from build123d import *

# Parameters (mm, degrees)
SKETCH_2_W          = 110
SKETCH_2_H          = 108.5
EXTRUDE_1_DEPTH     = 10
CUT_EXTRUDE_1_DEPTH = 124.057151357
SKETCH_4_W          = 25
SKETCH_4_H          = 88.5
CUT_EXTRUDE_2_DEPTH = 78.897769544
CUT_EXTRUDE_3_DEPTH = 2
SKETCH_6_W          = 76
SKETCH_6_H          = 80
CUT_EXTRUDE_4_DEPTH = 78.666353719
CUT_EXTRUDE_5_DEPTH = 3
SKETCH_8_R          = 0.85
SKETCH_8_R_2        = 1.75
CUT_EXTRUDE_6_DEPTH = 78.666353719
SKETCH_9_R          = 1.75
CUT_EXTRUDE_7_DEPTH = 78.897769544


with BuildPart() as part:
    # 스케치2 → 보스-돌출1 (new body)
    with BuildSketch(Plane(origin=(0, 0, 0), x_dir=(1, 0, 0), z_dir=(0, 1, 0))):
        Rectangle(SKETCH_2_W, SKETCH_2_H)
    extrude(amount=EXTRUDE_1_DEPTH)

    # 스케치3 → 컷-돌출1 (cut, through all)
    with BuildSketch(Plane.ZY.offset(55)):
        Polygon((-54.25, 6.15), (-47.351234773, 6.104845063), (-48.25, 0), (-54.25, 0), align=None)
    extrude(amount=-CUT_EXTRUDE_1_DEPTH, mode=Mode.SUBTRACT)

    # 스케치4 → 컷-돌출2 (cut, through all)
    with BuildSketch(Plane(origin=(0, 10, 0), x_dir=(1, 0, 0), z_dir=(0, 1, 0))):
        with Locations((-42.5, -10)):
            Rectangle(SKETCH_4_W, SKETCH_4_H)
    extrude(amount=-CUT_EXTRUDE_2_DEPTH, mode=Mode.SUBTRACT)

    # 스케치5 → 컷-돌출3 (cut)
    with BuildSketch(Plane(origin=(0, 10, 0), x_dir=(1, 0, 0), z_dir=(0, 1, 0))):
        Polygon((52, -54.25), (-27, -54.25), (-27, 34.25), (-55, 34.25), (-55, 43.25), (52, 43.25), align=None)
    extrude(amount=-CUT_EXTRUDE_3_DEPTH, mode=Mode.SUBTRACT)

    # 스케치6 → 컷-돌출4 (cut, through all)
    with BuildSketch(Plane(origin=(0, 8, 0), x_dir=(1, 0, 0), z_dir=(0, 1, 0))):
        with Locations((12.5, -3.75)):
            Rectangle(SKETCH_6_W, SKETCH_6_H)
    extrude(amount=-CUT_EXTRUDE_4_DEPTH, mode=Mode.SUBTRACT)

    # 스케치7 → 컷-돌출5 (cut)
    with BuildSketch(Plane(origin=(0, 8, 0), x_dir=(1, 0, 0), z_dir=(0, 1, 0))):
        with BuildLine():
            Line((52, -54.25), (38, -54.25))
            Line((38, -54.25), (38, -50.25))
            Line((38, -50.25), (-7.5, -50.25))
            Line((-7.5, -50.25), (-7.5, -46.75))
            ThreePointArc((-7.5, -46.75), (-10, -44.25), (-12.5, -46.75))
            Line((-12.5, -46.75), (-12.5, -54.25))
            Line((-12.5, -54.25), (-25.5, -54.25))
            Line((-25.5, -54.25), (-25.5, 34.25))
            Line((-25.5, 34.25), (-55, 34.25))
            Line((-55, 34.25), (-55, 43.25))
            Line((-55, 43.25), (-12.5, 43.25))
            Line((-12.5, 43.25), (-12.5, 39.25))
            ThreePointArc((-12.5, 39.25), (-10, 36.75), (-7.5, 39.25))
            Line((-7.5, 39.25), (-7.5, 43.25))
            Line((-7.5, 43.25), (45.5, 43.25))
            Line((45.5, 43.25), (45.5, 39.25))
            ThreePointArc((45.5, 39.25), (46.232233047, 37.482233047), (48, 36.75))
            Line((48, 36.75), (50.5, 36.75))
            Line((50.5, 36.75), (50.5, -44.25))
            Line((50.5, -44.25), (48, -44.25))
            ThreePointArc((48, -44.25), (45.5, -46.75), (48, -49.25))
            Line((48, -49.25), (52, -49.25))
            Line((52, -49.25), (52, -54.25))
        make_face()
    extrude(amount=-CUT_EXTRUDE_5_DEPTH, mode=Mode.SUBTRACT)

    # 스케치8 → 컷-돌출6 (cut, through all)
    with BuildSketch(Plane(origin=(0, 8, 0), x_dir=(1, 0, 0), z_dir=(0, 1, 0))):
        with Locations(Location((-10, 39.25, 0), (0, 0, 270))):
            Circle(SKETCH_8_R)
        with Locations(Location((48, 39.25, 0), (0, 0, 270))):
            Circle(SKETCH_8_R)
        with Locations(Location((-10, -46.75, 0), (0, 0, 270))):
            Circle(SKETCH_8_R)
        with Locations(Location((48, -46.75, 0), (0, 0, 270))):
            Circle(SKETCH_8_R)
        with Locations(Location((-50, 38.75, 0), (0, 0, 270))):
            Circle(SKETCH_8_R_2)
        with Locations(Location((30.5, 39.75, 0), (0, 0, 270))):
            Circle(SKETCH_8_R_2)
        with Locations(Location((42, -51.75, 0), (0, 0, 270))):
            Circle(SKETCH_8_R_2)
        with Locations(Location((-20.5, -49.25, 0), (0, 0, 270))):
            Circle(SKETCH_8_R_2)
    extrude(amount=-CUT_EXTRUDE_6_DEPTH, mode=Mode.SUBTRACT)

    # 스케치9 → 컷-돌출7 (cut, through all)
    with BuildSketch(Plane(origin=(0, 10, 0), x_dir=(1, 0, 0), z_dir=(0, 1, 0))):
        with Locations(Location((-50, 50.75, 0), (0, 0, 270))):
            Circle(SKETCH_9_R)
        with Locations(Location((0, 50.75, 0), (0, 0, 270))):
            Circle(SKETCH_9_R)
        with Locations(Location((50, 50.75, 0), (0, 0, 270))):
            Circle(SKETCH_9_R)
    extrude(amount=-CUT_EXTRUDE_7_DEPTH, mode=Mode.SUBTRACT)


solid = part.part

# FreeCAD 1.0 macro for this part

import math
import FreeCAD as App
import Part
import Sketcher

V = App.Vector
Q = App.Units.Quantity


def add_polygon(sketch, points):
    """Adds a closed chain of lines whose ends are joined by coincident constraints."""
    first, n = sketch.GeometryCount, len(points)
    for a, b in zip(points, points[1:] + points[:1]):
        sketch.addGeometry(Part.LineSegment(App.Vector(*a, 0), App.Vector(*b, 0)), False)
    for i in range(n):
        sketch.addConstraint(Sketcher.Constraint("Coincident", first + i, 2, first + (i + 1) % n, 1))

doc = App.newDocument("Part")
params = doc.addObject("Spreadsheet::Sheet", "Params")
for row, (alias, value) in enumerate([
    ("sketch1_width", "110 mm"),
    ("sketch1_height", "108.5 mm"),
    ("pad1_length", "10 mm"),
    ("sketch2_height", "6 mm"),
    ("sketch2_width", "6.15 mm"),
    ("sketch3_width", "25 mm"),
    ("sketch3_height", "88.5 mm"),
    ("sketch4_width", "79 mm"),
    ("sketch4_width2", "107 mm"),
    ("sketch4_height", "9 mm"),
    ("sketch4_height2", "97.5 mm"),
    ("pocket3_length", "2 mm"),
    ("sketch5_width", "76 mm"),
    ("sketch5_height", "80 mm"),
    ("sketch6_radius", "2.5 mm"),
    ("sketch6_width", "14 mm"),
    ("sketch6_width2", "4 mm"),
    ("sketch6_width3", "53 mm"),
    ("sketch6_width4", "13 mm"),
    ("pocket5_length", "3 mm"),
    ("sketch7_diameter", "1.7 mm"),
    ("sketch7_diameter2", "3.5 mm"),
    ("sketch8_diameter", "3.5 mm"),
], start=1):
    params.set(f"A{row}", alias)
    params.set(f"B{row}", "=" + value)
    params.setAlias(f"B{row}", alias)

body = doc.addObject("PartDesign::Body", "Body")

sketch1 = body.newObject("Sketcher::SketchObject", "Sketch")
sketch1.AttachmentSupport = (doc.getObject("XZ_Plane"), [""])
sketch1.MapMode = "FlatFace"
add_polygon(sketch1, [(-55, -54), (-55, 54), (55, 54), (55, -54)])
sketch1.addConstraint([
    Sketcher.Constraint("Vertical", 0),
    Sketcher.Constraint("Horizontal", 1),
    Sketcher.Constraint("Vertical", 2),
    Sketcher.Constraint("Horizontal", 3),
    Sketcher.Constraint("Symmetric", 0, 2, 2, 2, -1, 1),
    Sketcher.Constraint("DistanceX", 1, 1, 1, 2, Q("110 mm")),
    Sketcher.Constraint("DistanceY", 0, 1, 0, 2, Q("108.5 mm")),
])
sketch1.setExpression("Constraints[9]", "Params.sketch1_width")
sketch1.setExpression("Constraints[10]", "Params.sketch1_height")
pad1 = body.newObject("PartDesign::Pad", "Pad")
pad1.Profile = sketch1
pad1.setExpression("Length", "Params.pad1_length")
pad1.Reversed = True

sketch2 = body.newObject("Sketcher::SketchObject", "Sketch001")
sketch2.AttachmentSupport = (doc.getObject("YZ_Plane"), [""])
sketch2.MapMode = "FlatFace"
sketch2.AttachmentOffset = App.Placement(V(0, 0, -55), App.Rotation())
add_polygon(sketch2, [(6, -47), (6, -54), (0, -54), (0, -48)])
sketch2.addConstraint([
    Sketcher.Constraint("Horizontal", 1),
    Sketcher.Constraint("Vertical", 2),
    Sketcher.Constraint("PointOnObject", 1, 2, -2),
    Sketcher.Constraint("DistanceY", 2, 1, 2, 2, Q("6 mm")),
    Sketcher.Constraint("DistanceX", 1, 2, 1, 1, Q("6.15 mm")),
    Sketcher.Constraint("DistanceY", 0, 2, -1, 1, Q("54.25 mm")),
    Sketcher.Constraint("Distance", 3, Q("6.170649 mm")),
    Sketcher.Constraint("Distance", 0, Q("6.898913 mm")),
])
sketch2.setExpression("Constraints[7]", "Params.sketch2_height")
sketch2.setExpression("Constraints[8]", "Params.sketch2_width")
pocket1 = body.newObject("PartDesign::Pocket", "Pocket")
pocket1.Profile = sketch2
pocket1.Type = "ThroughAll"
pocket1.Reversed = True

sketch3 = body.newObject("Sketcher::SketchObject", "Sketch002")
sketch3.AttachmentSupport = (doc.getObject("XZ_Plane"), [""])
sketch3.MapMode = "FlatFace"
sketch3.AttachmentOffset = App.Placement(V(0, 0, -10), App.Rotation())
add_polygon(sketch3, [(-55, -34), (-55, 54), (-30, 54), (-30, -34)])
sketch3.addConstraint([
    Sketcher.Constraint("Vertical", 0),
    Sketcher.Constraint("Horizontal", 1),
    Sketcher.Constraint("Vertical", 2),
    Sketcher.Constraint("Horizontal", 3),
    Sketcher.Constraint("DistanceX", 1, 1, 1, 2, Q("25 mm")),
    Sketcher.Constraint("DistanceY", 0, 1, 0, 2, Q("88.5 mm")),
    Sketcher.Constraint("DistanceX", 0, 2, -1, 1, Q("55 mm")),
    Sketcher.Constraint("DistanceY", -1, 1, 0, 2, Q("54.25 mm")),
])
sketch3.setExpression("Constraints[8]", "Params.sketch3_width")
sketch3.setExpression("Constraints[9]", "Params.sketch3_height")
pocket2 = body.newObject("PartDesign::Pocket", "Pocket001")
pocket2.Profile = sketch3
pocket2.Type = "ThroughAll"
pocket2.Reversed = True

sketch4 = body.newObject("Sketcher::SketchObject", "Sketch003")
sketch4.AttachmentSupport = (doc.getObject("XZ_Plane"), [""])
sketch4.MapMode = "FlatFace"
sketch4.AttachmentOffset = App.Placement(V(0, 0, -10), App.Rotation())
add_polygon(sketch4, [(-27, 54), (52, 54), (52, -43), (-55, -43), (-55, -34), (-27, -34)])
sketch4.addConstraint([
    Sketcher.Constraint("Horizontal", 0),
    Sketcher.Constraint("Vertical", 1),
    Sketcher.Constraint("Horizontal", 2),
    Sketcher.Constraint("Vertical", 3),
    Sketcher.Constraint("Horizontal", 4),
    Sketcher.Constraint("Vertical", 5),
    Sketcher.Constraint("DistanceX", 0, 1, 0, 2, Q("79 mm")),
    Sketcher.Constraint("DistanceX", 2, 2, 2, 1, Q("107 mm")),
    Sketcher.Constraint("DistanceY", 3, 1, 3, 2, Q("9 mm")),
    Sketcher.Constraint("DistanceY", 1, 2, 1, 1, Q("97.5 mm")),
    Sketcher.Constraint("DistanceX", -1, 1, 0, 2, Q("52 mm")),
    Sketcher.Constraint("DistanceY", -1, 1, 0, 2, Q("54.25 mm")),
])
sketch4.setExpression("Constraints[12]", "Params.sketch4_width")
sketch4.setExpression("Constraints[13]", "Params.sketch4_width2")
sketch4.setExpression("Constraints[14]", "Params.sketch4_height")
sketch4.setExpression("Constraints[15]", "Params.sketch4_height2")
pocket3 = body.newObject("PartDesign::Pocket", "Pocket002")
pocket3.Profile = sketch4
pocket3.setExpression("Length", "Params.pocket3_length")
pocket3.Reversed = True

sketch5 = body.newObject("Sketcher::SketchObject", "Sketch004")
sketch5.AttachmentSupport = (doc.getObject("XZ_Plane"), [""])
sketch5.MapMode = "FlatFace"
sketch5.AttachmentOffset = App.Placement(V(0, 0, -8), App.Rotation())
add_polygon(sketch5, [(-26, -36), (-26, 44), (50, 44), (50, -36)])
sketch5.addConstraint([
    Sketcher.Constraint("Vertical", 0),
    Sketcher.Constraint("Horizontal", 1),
    Sketcher.Constraint("Vertical", 2),
    Sketcher.Constraint("Horizontal", 3),
    Sketcher.Constraint("DistanceX", 1, 1, 1, 2, Q("76 mm")),
    Sketcher.Constraint("DistanceY", 0, 1, 0, 2, Q("80 mm")),
    Sketcher.Constraint("DistanceX", 0, 2, -1, 1, Q("25.5 mm")),
    Sketcher.Constraint("DistanceY", -1, 1, 0, 2, Q("43.75 mm")),
])
sketch5.setExpression("Constraints[8]", "Params.sketch5_width")
sketch5.setExpression("Constraints[9]", "Params.sketch5_height")
pocket4 = body.newObject("PartDesign::Pocket", "Pocket003")
pocket4.Profile = sketch5
pocket4.Type = "ThroughAll"
pocket4.Reversed = True

sketch6 = body.newObject("Sketcher::SketchObject", "Sketch005")
sketch6.AttachmentSupport = (doc.getObject("XZ_Plane"), [""])
sketch6.MapMode = "FlatFace"
sketch6.AttachmentOffset = App.Placement(V(0, 0, -8), App.Rotation())
sketch6.addGeometry([
    Part.LineSegment(V(38, 54.2, 0), V(52, 54.2, 0)),
    Part.LineSegment(V(52, 54.2, 0), V(52, 49.2, 0)),
    Part.LineSegment(V(52, 49.2, 0), V(48, 49.2, 0)),
    Part.ArcOfCircle(Part.Circle(V(48, 46.8, 0), V(0, 0, 1), 2.5), math.radians(90), math.radians(270)),
    Part.LineSegment(V(48, 44.2, 0), V(50.5, 44.2, 0)),
    Part.LineSegment(V(50.5, 44.2, 0), V(50.5, -36.8, 0)),
    Part.LineSegment(V(50.5, -36.8, 0), V(48, -36.8, 0)),
    Part.ArcOfCircle(Part.Circle(V(48, -39.2, 0), V(0, 0, 1), 2.5), math.radians(90), math.radians(180)),
    Part.LineSegment(V(45.5, -39.2, 0), V(45.5, -43.2, 0)),
    Part.LineSegment(V(45.5, -43.2, 0), V(-7.5, -43.2, 0)),
    Part.LineSegment(V(-7.5, -43.2, 0), V(-7.5, -39.2, 0)),
    Part.ArcOfCircle(Part.Circle(V(-10, -39.2, 0), V(0, 0, 1), 2.5), math.radians(0), math.radians(180)),
    Part.LineSegment(V(-12.5, -39.2, 0), V(-12.5, -43.2, 0)),
    Part.LineSegment(V(-12.5, -43.2, 0), V(-55, -43.2, 0)),
    Part.LineSegment(V(-55, -43.2, 0), V(-55, -34.2, 0)),
    Part.LineSegment(V(-55, -34.2, 0), V(-25.5, -34.2, 0)),
    Part.LineSegment(V(-25.5, -34.2, 0), V(-25.5, 54.2, 0)),
    Part.LineSegment(V(-25.5, 54.2, 0), V(-12.5, 54.2, 0)),
    Part.LineSegment(V(-12.5, 54.2, 0), V(-12.5, 46.8, 0)),
    Part.ArcOfCircle(Part.Circle(V(-10, 46.8, 0), V(0, 0, 1), 2.5), math.radians(180), math.radians(360)),
    Part.LineSegment(V(-7.5, 46.8, 0), V(-7.5, 50.2, 0)),
    Part.LineSegment(V(-7.5, 50.2, 0), V(38, 50.2, 0)),
    Part.LineSegment(V(38, 50.2, 0), V(38, 54.2, 0)),
], False)
sketch6.addConstraint([
    Sketcher.Constraint("Coincident", 0, 2, 1, 1),
    Sketcher.Constraint("Coincident", 1, 2, 2, 1),
    Sketcher.Constraint("Tangent", 2, 2, 3, 1),
    Sketcher.Constraint("Tangent", 3, 2, 4, 1),
    Sketcher.Constraint("Coincident", 4, 2, 5, 1),
    Sketcher.Constraint("Coincident", 5, 2, 6, 1),
    Sketcher.Constraint("Tangent", 6, 2, 7, 1),
    Sketcher.Constraint("Tangent", 7, 2, 8, 1),
    Sketcher.Constraint("Coincident", 8, 2, 9, 1),
    Sketcher.Constraint("Coincident", 9, 2, 10, 1),
    Sketcher.Constraint("Tangent", 10, 2, 11, 1),
    Sketcher.Constraint("Tangent", 11, 2, 12, 1),
    Sketcher.Constraint("Coincident", 12, 2, 13, 1),
    Sketcher.Constraint("Coincident", 13, 2, 14, 1),
    Sketcher.Constraint("Coincident", 14, 2, 15, 1),
    Sketcher.Constraint("Coincident", 15, 2, 16, 1),
    Sketcher.Constraint("Coincident", 16, 2, 17, 1),
    Sketcher.Constraint("Coincident", 17, 2, 18, 1),
    Sketcher.Constraint("Tangent", 18, 2, 19, 1),
    Sketcher.Constraint("Tangent", 19, 2, 20, 1),
    Sketcher.Constraint("Coincident", 20, 2, 21, 1),
    Sketcher.Constraint("Coincident", 21, 2, 22, 1),
    Sketcher.Constraint("Coincident", 22, 2, 0, 1),
    Sketcher.Constraint("Horizontal", 0),
    Sketcher.Constraint("Vertical", 1),
    Sketcher.Constraint("Horizontal", 2),
    Sketcher.Constraint("Horizontal", 4),
    Sketcher.Constraint("Vertical", 5),
    Sketcher.Constraint("Horizontal", 6),
    Sketcher.Constraint("Vertical", 8),
    Sketcher.Constraint("Horizontal", 9),
    Sketcher.Constraint("Vertical", 10),
    Sketcher.Constraint("Vertical", 12),
    Sketcher.Constraint("Horizontal", 13),
    Sketcher.Constraint("Vertical", 14),
    Sketcher.Constraint("Horizontal", 15),
    Sketcher.Constraint("Vertical", 16),
    Sketcher.Constraint("Horizontal", 17),
    Sketcher.Constraint("Vertical", 18),
    Sketcher.Constraint("Vertical", 20),
    Sketcher.Constraint("Horizontal", 21),
    Sketcher.Constraint("Vertical", 22),
    Sketcher.Constraint("Equal", 3, 7),
    Sketcher.Constraint("Equal", 7, 11),
    Sketcher.Constraint("Equal", 11, 19),
    Sketcher.Constraint("Horizontal", 7, 3, 11, 3),
    Sketcher.Constraint("Horizontal", 3, 3, 19, 3),
    Sketcher.Constraint("Horizontal", 9, 2, 12, 2),
    Sketcher.Constraint("Horizontal", 0, 2, 16, 2),
    Sketcher.Constraint("Vertical", 3, 3, 7, 3),
    Sketcher.Constraint("Vertical", 11, 3, 19, 3),
    Sketcher.Constraint("Equal", 2, 8),
    Sketcher.Constraint("Equal", 12, 22),
    Sketcher.Constraint("Radius", 3, Q("2.5 mm")),
    Sketcher.Constraint("DistanceX", 0, 1, 0, 2, Q("14 mm")),
    Sketcher.Constraint("DistanceX", 2, 2, 2, 1, Q("4 mm")),
    Sketcher.Constraint("DistanceX", 9, 2, 9, 1, Q("53 mm")),
    Sketcher.Constraint("DistanceX", 17, 1, 17, 2, Q("13 mm")),
    Sketcher.Constraint("DistanceY", 1, 2, 1, 1, Q("5 mm")),
    Sketcher.Constraint("DistanceY", 5, 2, 5, 1, Q("81 mm")),
    Sketcher.Constraint("DistanceY", 14, 1, 14, 2, Q("9 mm")),
    Sketcher.Constraint("DistanceX", 4, 1, 4, 2, Q("2.5 mm")),
    Sketcher.Constraint("DistanceX", 13, 2, 13, 1, Q("42.5 mm")),
    Sketcher.Constraint("DistanceX", -1, 1, 3, 3, Q("48 mm")),
    Sketcher.Constraint("DistanceY", -1, 1, 3, 3, Q("46.75 mm")),
])
sketch6.setExpression("Constraints[53]", "Params.sketch6_radius")
sketch6.setExpression("Constraints[54]", "Params.sketch6_width")
sketch6.setExpression("Constraints[55]", "Params.sketch6_width2")
sketch6.setExpression("Constraints[56]", "Params.sketch6_width3")
sketch6.setExpression("Constraints[57]", "Params.sketch6_width4")
pocket5 = body.newObject("PartDesign::Pocket", "Pocket004")
pocket5.Profile = sketch6
pocket5.setExpression("Length", "Params.pocket5_length")
pocket5.Reversed = True

sketch7 = body.newObject("Sketcher::SketchObject", "Sketch006")
sketch7.AttachmentSupport = (doc.getObject("XZ_Plane"), [""])
sketch7.MapMode = "FlatFace"
sketch7.AttachmentOffset = App.Placement(V(0, 0, -8), App.Rotation())
sketch7.addGeometry([
    Part.Circle(V(-10, -39.2, 0), V(0, 0, 1), 0.8),
    Part.Circle(V(48, -39.2, 0), V(0, 0, 1), 0.8),
    Part.Circle(V(-10, 46.8, 0), V(0, 0, 1), 0.8),
    Part.Circle(V(48, 46.8, 0), V(0, 0, 1), 0.8),
    Part.Circle(V(-50, -38.8, 0), V(0, 0, 1), 1.8),
    Part.Circle(V(30.5, -39.8, 0), V(0, 0, 1), 1.8),
    Part.Circle(V(42, 51.8, 0), V(0, 0, 1), 1.8),
    Part.Circle(V(-20.5, 49.2, 0), V(0, 0, 1), 1.8),
], False)
sketch7.addConstraint([
    Sketcher.Constraint("Equal", 0, 1),
    Sketcher.Constraint("Equal", 1, 2),
    Sketcher.Constraint("Equal", 2, 3),
    Sketcher.Constraint("Equal", 4, 5),
    Sketcher.Constraint("Equal", 5, 6),
    Sketcher.Constraint("Equal", 6, 7),
    Sketcher.Constraint("Horizontal", 0, 3, 1, 3),
    Sketcher.Constraint("Horizontal", 2, 3, 3, 3),
    Sketcher.Constraint("Vertical", 0, 3, 2, 3),
    Sketcher.Constraint("Vertical", 1, 3, 3, 3),
    Sketcher.Constraint("Diameter", 0, Q("1.7 mm")),
    Sketcher.Constraint("Diameter", 4, Q("3.5 mm")),
    Sketcher.Constraint("DistanceX", 0, 3, -1, 1, Q("10 mm")),
    Sketcher.Constraint("DistanceX", -1, 1, 1, 3, Q("48 mm")),
    Sketcher.Constraint("DistanceX", 4, 3, -1, 1, Q("50 mm")),
    Sketcher.Constraint("DistanceX", -1, 1, 6, 3, Q("42 mm")),
    Sketcher.Constraint("DistanceY", 0, 3, 2, 3, Q("86 mm")),
    Sketcher.Constraint("DistanceY", 5, 3, 4, 3, Q("1 mm")),
    Sketcher.Constraint("DistanceY", 3, 3, 6, 3, Q("5 mm")),
    Sketcher.Constraint("DistanceY", 4, 3, 7, 3, Q("88 mm")),
    Sketcher.Constraint("DistanceX", -1, 1, 5, 3, Q("30.5 mm")),
    Sketcher.Constraint("DistanceX", 7, 3, -1, 1, Q("20.5 mm")),
    Sketcher.Constraint("DistanceY", 0, 3, 4, 3, Q("0.5 mm")),
    Sketcher.Constraint("DistanceY", 0, 3, -1, 1, Q("39.25 mm")),
])
sketch7.setExpression("Constraints[10]", "Params.sketch7_diameter")
sketch7.setExpression("Constraints[11]", "Params.sketch7_diameter2")
pocket6 = body.newObject("PartDesign::Pocket", "Pocket005")
pocket6.Profile = sketch7
pocket6.Type = "ThroughAll"
pocket6.Reversed = True

sketch8 = body.newObject("Sketcher::SketchObject", "Sketch007")
sketch8.AttachmentSupport = (doc.getObject("XZ_Plane"), [""])
sketch8.MapMode = "FlatFace"
sketch8.AttachmentOffset = App.Placement(V(0, 0, -10), App.Rotation())
sketch8.addGeometry([
    Part.Circle(V(-50, -50.8, 0), V(0, 0, 1), 1.8),
    Part.Circle(V(0, -50.8, 0), V(0, 0, 1), 1.8),
    Part.Circle(V(50, -50.8, 0), V(0, 0, 1), 1.8),
], False)
sketch8.addConstraint([
    Sketcher.Constraint("Equal", 0, 1),
    Sketcher.Constraint("Equal", 1, 2),
    Sketcher.Constraint("Symmetric", 0, 3, 2, 3, -2),
    Sketcher.Constraint("PointOnObject", 1, 3, -2),
    Sketcher.Constraint("Horizontal", 0, 3, 1, 3),
    Sketcher.Constraint("Diameter", 0, Q("3.5 mm")),
    Sketcher.Constraint("DistanceX", 0, 3, -1, 1, Q("50 mm")),
    Sketcher.Constraint("DistanceY", 0, 3, -1, 1, Q("50.75 mm")),
])
sketch8.setExpression("Constraints[5]", "Params.sketch8_diameter")
pocket7 = body.newObject("PartDesign::Pocket", "Pocket006")
pocket7.Profile = sketch8
pocket7.Type = "ThroughAll"
pocket7.Reversed = True

doc.recompute()
